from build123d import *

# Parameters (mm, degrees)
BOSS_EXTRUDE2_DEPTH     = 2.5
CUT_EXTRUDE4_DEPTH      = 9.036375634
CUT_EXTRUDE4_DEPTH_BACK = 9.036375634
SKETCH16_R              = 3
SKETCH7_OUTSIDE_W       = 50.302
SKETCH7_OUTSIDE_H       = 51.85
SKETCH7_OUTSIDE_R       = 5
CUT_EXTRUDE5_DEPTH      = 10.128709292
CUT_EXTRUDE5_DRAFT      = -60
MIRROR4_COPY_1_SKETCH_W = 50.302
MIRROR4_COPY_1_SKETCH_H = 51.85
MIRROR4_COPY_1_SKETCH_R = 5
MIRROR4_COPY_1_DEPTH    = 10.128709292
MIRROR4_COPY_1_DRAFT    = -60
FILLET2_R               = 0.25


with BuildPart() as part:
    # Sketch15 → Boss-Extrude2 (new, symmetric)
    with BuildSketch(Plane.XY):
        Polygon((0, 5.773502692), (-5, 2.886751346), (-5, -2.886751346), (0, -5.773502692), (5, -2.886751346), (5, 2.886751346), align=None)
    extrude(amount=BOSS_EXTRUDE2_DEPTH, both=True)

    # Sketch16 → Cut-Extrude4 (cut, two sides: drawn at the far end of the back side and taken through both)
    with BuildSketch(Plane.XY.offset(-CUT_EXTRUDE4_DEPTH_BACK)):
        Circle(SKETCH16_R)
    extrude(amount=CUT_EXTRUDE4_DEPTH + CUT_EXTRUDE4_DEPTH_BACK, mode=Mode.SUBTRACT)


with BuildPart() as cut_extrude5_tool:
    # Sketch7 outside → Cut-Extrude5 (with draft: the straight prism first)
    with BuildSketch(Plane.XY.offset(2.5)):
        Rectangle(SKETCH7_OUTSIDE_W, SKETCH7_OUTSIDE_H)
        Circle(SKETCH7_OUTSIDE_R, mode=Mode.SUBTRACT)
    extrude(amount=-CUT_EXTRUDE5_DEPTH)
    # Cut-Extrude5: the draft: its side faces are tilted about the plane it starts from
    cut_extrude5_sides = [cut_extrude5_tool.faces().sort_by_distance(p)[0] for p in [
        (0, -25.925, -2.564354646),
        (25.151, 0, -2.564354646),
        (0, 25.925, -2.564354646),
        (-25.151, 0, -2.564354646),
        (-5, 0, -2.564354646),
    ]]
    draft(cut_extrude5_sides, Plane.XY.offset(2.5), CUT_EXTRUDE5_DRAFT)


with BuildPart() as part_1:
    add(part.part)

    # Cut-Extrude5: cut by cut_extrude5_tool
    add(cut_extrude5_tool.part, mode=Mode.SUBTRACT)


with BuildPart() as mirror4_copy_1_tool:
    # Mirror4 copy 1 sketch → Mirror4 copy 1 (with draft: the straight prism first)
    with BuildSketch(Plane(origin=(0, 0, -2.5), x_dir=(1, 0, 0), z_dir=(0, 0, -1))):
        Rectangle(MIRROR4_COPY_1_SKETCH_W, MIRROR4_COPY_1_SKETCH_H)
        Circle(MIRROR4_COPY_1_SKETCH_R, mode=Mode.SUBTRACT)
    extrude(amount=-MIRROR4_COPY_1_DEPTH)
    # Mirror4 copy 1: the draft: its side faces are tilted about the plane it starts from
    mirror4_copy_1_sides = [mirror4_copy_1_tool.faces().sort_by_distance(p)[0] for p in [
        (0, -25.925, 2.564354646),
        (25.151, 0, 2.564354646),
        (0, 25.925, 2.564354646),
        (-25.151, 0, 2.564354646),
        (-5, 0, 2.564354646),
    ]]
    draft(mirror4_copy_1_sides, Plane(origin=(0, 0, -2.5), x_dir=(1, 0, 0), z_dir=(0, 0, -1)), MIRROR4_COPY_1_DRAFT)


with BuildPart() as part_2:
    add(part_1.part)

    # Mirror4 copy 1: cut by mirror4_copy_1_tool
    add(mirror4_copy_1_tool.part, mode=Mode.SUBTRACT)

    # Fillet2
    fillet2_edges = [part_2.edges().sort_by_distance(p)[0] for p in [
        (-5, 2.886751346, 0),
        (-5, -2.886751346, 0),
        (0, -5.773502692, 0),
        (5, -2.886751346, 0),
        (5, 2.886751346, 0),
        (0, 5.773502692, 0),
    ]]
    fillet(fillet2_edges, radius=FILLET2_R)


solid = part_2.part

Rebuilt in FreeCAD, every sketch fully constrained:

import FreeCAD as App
import Part
import Sketcher

V = App.Vector
Q = App.Units.Quantity


def edges_at(feature, points):
    """Names of the edges that pass closest to the given points."""
    edges = feature.Shape.Edges
    near = lambda p: min(range(len(edges)), key=lambda i: edges[i].distToShape(Part.Vertex(*p))[0])
    return sorted({f"Edge{near(p) + 1}" for p in points})


def faces_at(feature, points):
    """Names of the faces that lie closest to the given points."""
    faces = feature.Shape.Faces
    near = lambda p: min(range(len(faces)), key=lambda i: faces[i].distToShape(Part.Vertex(*p))[0])
    return sorted({f"Face{near(p) + 1}" for p in points})


def add_polygon(sketch, points):
    """Adds a closed chain of lines whose ends are joined by coincident constraints."""
    first, n = sketch.GeometryCount, len(points)
    for a, b in zip(points, points[1:] + points[:1]):
        sketch.addGeometry(Part.LineSegment(App.Vector(*a, 0), App.Vector(*b, 0)), False)
    for i in range(n):
        sketch.addConstraint(Sketcher.Constraint("Coincident", first + i, 2, first + (i + 1) % n, 1))

doc = App.newDocument("Part")
body = doc.addObject("PartDesign::Body", "Body")

sketch1 = body.newObject("Sketcher::SketchObject", "Sketch")
sketch1.AttachmentSupport = (doc.getObject("XY_Plane"), [""])
sketch1.MapMode = "FlatFace"
add_polygon(sketch1, [(0, 6), (-5, 3), (-5, -3), (0, -6), (5, -3), (5, 3)])
sketch1.addConstraint(Sketcher.Constraint("Vertical", 1))
sketch1.addConstraint(Sketcher.Constraint("Vertical", 4))
sketch1.addConstraint(Sketcher.Constraint("Symmetric", 0, 2, 3, 2, -1, 1))
sketch1.addConstraint(Sketcher.Constraint("Symmetric", 2, 2, 5, 2, -1, 1))
sketch1.addConstraint(Sketcher.Constraint("PointOnObject", 2, 2, -2))
sketch1.addConstraint(Sketcher.Constraint("Parallel", 2, 5))
sketch1.addConstraint(Sketcher.Constraint("Horizontal", 1, 2, 3, 2))
sketch1.addConstraint(Sketcher.Constraint("Angle", 0, Q("-150 deg")))
sketch1.addConstraint(Sketcher.Constraint("DistanceX", 0, 2, -1, 1, 5.0))
sketch1.addConstraint(Sketcher.Constraint("DistanceY", 1, 2, 1, 1, 5.773503))
pad1 = body.newObject("PartDesign::Pad", "Pad")
pad1.Profile = sketch1
pad1.Length = 5
pad1.Midplane = True

sketch2 = body.newObject("Sketcher::SketchObject", "Sketch001")
sketch2.AttachmentSupport = (doc.getObject("XY_Plane"), [""])
sketch2.MapMode = "FlatFace"
sketch2.addGeometry(Part.Circle(V(0, 0, 0), V(0, 0, 1), 3), False)
sketch2.addConstraint(Sketcher.Constraint("Coincident", 0, 3, -1, 1))
sketch2.addConstraint(Sketcher.Constraint("Diameter", 0, 6.0))
pocket1 = body.newObject("PartDesign::Pocket", "Pocket")
pocket1.Profile = sketch2
pocket1.Type = "ThroughAll"
pocket1.Midplane = True
body2 = doc.addObject("PartDesign::Body", "Body001")

sketch3 = body2.newObject("Sketcher::SketchObject", "Sketch002")
sketch3.AttachmentSupport = (doc.getObject("XY_Plane001"), [""])
sketch3.MapMode = "FlatFace"
sketch3.AttachmentOffset = App.Placement(V(0, 0, 2.5), App.Rotation())
add_polygon(sketch3, [(-25, 26), (-25, -26), (25, -26), (25, 26)])
sketch3.addGeometry(Part.Circle(V(0, 0, 0), V(0, 0, 1), 5), False)
sketch3.addConstraint(Sketcher.Constraint("Vertical", 0))
sketch3.addConstraint(Sketcher.Constraint("Horizontal", 1))
sketch3.addConstraint(Sketcher.Constraint("Vertical", 2))
sketch3.addConstraint(Sketcher.Constraint("Horizontal", 3))
sketch3.addConstraint(Sketcher.Constraint("Coincident", 4, 3, -1, 1))
sketch3.addConstraint(Sketcher.Constraint("Symmetric", 0, 2, 2, 2, -1, 1))
sketch3.addConstraint(Sketcher.Constraint("Diameter", 4, 10.0))
sketch3.addConstraint(Sketcher.Constraint("DistanceY", 0, 2, 0, 1, 51.85))
sketch3.addConstraint(Sketcher.Constraint("DistanceX", 1, 1, 1, 2, 50.302))
pad2 = body2.newObject("PartDesign::Pad", "Pad001")
pad2.Profile = sketch3
pad2.Length = 10.128709
pad2.Reversed = True
doc.recompute()

datumplane = body2.newObject("PartDesign::Plane", "DatumPlane")
datumplane.AttachmentSupport = (doc.getObject("XY_Plane001"), [""])
datumplane.MapMode = "FlatFace"
datumplane.AttachmentOffset = App.Placement(V(0, 0, 2.5), App.Rotation())
draft = body2.newObject("PartDesign::Draft", "Draft")
draft.Base = (pad2, faces_at(pad2, [
    (0, -25.925, -2.564),
    (25.151, 0, -2.564),
    (0, 25.925, -2.564),
    (-25.151, 0, -2.564),
    (-5, 0, -2.564),
]))
draft.NeutralPlane = (datumplane, [""])
draft.Angle = 60
draft.Reversed = True
doc.recompute()

boolean = body.newObject("PartDesign::Boolean", "Boolean")
boolean.Type = "Cut"
boolean.addObjects([body2])
body3 = doc.addObject("PartDesign::Body", "Body002")

sketch4 = body3.newObject("Sketcher::SketchObject", "Sketch003")
sketch4.AttachmentSupport = (doc.getObject("XY_Plane002"), [""])
sketch4.MapMode = "FlatFace"
sketch4.AttachmentOffset = App.Placement(V(0, 0, -2.5), App.Rotation())
add_polygon(sketch4, [(-25, -26), (-25, 26), (25, 26), (25, -26)])
sketch4.addGeometry(Part.Circle(V(0, 0, 0), V(0, 0, 1), 5), False)
sketch4.addConstraint(Sketcher.Constraint("Vertical", 0))
sketch4.addConstraint(Sketcher.Constraint("Horizontal", 1))
sketch4.addConstraint(Sketcher.Constraint("Vertical", 2))
sketch4.addConstraint(Sketcher.Constraint("Horizontal", 3))
sketch4.addConstraint(Sketcher.Constraint("Coincident", 4, 3, -1, 1))
sketch4.addConstraint(Sketcher.Constraint("Symmetric", 0, 2, 2, 2, -1, 1))
sketch4.addConstraint(Sketcher.Constraint("Diameter", 4, 10.0))
sketch4.addConstraint(Sketcher.Constraint("DistanceY", 0, 1, 0, 2, 51.85))
sketch4.addConstraint(Sketcher.Constraint("DistanceX", 1, 1, 1, 2, 50.302))
pad3 = body3.newObject("PartDesign::Pad", "Pad002")
pad3.Profile = sketch4
pad3.Length = 10.128709
doc.recompute()

datumplane2 = body3.newObject("PartDesign::Plane", "DatumPlane001")
datumplane2.AttachmentSupport = (doc.getObject("XY_Plane002"), [""])
datumplane2.MapMode = "FlatFace"
datumplane2.AttachmentOffset = App.Placement(V(0, 0, -2.5), App.Rotation())
draft2 = body3.newObject("PartDesign::Draft", "Draft001")
draft2.Base = (pad3, faces_at(pad3, [
    (0, -25.925, 2.564),
    (25.151, 0, 2.564),
    (0, 25.925, 2.564),
    (-25.151, 0, 2.564),
    (-5, 0, 2.564),
]))
draft2.NeutralPlane = (datumplane2, [""])
draft2.Angle = 60
draft2.Reversed = False
doc.recompute()

boolean2 = body.newObject("PartDesign::Boolean", "Boolean001")
boolean2.Type = "Cut"
boolean2.addObjects([body3])
doc.recompute()

fillet = body.newObject("PartDesign::Fillet", "Fillet")
fillet.Base = (boolean2, edges_at(boolean2, [
    (-5, 2.887, 0),
    (-5, -2.887, 0),
    (0, -5.774, 0),
    (5, -2.887, 0),
    (5, 2.887, 0),
    (0, 5.774, 0),
]))
fillet.Radius = 0.25

doc.recompute()
